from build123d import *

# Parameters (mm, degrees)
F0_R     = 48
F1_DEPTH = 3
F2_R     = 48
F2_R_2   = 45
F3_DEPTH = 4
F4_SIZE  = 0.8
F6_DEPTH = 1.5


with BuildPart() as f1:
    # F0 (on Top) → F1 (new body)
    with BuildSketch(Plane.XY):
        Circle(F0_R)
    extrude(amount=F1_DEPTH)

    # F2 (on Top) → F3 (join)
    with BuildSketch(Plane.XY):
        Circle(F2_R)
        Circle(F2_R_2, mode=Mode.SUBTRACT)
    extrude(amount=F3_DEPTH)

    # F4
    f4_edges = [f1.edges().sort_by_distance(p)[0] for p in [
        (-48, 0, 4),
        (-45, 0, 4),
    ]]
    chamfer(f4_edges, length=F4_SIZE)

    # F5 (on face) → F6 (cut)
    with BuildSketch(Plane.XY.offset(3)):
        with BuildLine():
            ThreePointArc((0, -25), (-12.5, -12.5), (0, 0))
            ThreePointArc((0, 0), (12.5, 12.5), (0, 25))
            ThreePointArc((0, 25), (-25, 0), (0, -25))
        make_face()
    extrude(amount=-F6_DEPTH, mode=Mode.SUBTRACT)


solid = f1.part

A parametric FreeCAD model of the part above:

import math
import FreeCAD as App
import Part
import Sketcher
Q = App.Units.Quantity


def edges_at(feature, points):
    """Names of the edges that pass closest to the given points."""
    edges = feature.Shape.Edges
    near = lambda p: min(range(len(edges)), key=lambda i: edges[i].distToShape(Part.Vertex(*p))[0])
    return sorted({f"Edge{near(p) + 1}" for p in points})

doc = App.newDocument("Part")
body = doc.addObject("PartDesign::Body", "Body")

# Sketch on XY plane
sketch1 = body.newObject("Sketcher::SketchObject", "Sketch")
sketch1.AttachmentSupport = (doc.getObject("XY_Plane"), [""])
sketch1.MapMode = "FlatFace"
sketch1.addGeometry(Part.Circle(App.Vector(0, 0, 0), App.Vector(0, 0, 1), 48), False)
sketch1.addConstraint(Sketcher.Constraint("Coincident", 0, 3, -1, 1))
sketch1.addConstraint(Sketcher.Constraint("Diameter", 0, Q("96 mm")))
pad1 = body.newObject("PartDesign::Pad", "Pad")
pad1.Profile = sketch1
pad1.Length = 3

# Sketch on XY plane
sketch2 = body.newObject("Sketcher::SketchObject", "Sketch001")
sketch2.AttachmentSupport = (doc.getObject("XY_Plane"), [""])
sketch2.MapMode = "FlatFace"
sketch2.addGeometry(Part.Circle(App.Vector(0, 0, 0), App.Vector(0, 0, 1), 48), False)
sketch2.addGeometry(Part.Circle(App.Vector(0, 0, 0), App.Vector(0, 0, 1), 45), False)
sketch2.addConstraint(Sketcher.Constraint("Coincident", 0, 3, -1, 1))
sketch2.addConstraint(Sketcher.Constraint("Coincident", 1, 3, -1, 1))
sketch2.addConstraint(Sketcher.Constraint("Diameter", 0, Q("96 mm")))
sketch2.addConstraint(Sketcher.Constraint("Diameter", 1, Q("90 mm")))
pad2 = body.newObject("PartDesign::Pad", "Pad001")
pad2.Profile = sketch2
pad2.Length = 4
doc.recompute()

chamfer = body.newObject("PartDesign::Chamfer", "Chamfer")
chamfer.Base = (pad2, edges_at(pad2, [(-48, 0, 4), (-45, 0, 4)]))
chamfer.Size = 0.8

# Sketch on XY plane
sketch3 = body.newObject("Sketcher::SketchObject", "Sketch002")
sketch3.AttachmentSupport = (doc.getObject("XY_Plane"), [""])
sketch3.MapMode = "FlatFace"
sketch3.AttachmentOffset = App.Placement(App.Vector(0, 0, 3), App.Rotation())
sketch3.addGeometry(Part.ArcOfCircle(Part.Circle(App.Vector(0, -12, 0), App.Vector(0, 0, 1), 12), math.radians(90), math.radians(270)), False)
sketch3.addGeometry(Part.ArcOfCircle(Part.Circle(App.Vector(0, 12, 0), App.Vector(0, 0, 1), 12), math.radians(-90), math.radians(90)), False)
sketch3.addGeometry(Part.ArcOfCircle(Part.Circle(App.Vector(0, 0, 0), App.Vector(0, 0, 1), 25), math.radians(90), math.radians(270)), False)
sketch3.addConstraint(Sketcher.Constraint("Tangent", 0, 1, 1, 1))
sketch3.addConstraint(Sketcher.Constraint("Tangent", 1, 2, 2, 1))
sketch3.addConstraint(Sketcher.Constraint("Tangent", 2, 2, 0, 2))
sketch3.addConstraint(Sketcher.Constraint("Coincident", 2, 3, -1, 1))
sketch3.addConstraint(Sketcher.Constraint("Coincident", 0, 1, -1, 1))
sketch3.addConstraint(Sketcher.Constraint("PointOnObject", 0, 3, -2))
sketch3.addConstraint(Sketcher.Constraint("Radius", 2, Q("25 mm")))
pocket1 = body.newObject("PartDesign::Pocket", "Pocket")
pocket1.Profile = sketch3
pocket1.Length = 1.5

doc.recompute()
